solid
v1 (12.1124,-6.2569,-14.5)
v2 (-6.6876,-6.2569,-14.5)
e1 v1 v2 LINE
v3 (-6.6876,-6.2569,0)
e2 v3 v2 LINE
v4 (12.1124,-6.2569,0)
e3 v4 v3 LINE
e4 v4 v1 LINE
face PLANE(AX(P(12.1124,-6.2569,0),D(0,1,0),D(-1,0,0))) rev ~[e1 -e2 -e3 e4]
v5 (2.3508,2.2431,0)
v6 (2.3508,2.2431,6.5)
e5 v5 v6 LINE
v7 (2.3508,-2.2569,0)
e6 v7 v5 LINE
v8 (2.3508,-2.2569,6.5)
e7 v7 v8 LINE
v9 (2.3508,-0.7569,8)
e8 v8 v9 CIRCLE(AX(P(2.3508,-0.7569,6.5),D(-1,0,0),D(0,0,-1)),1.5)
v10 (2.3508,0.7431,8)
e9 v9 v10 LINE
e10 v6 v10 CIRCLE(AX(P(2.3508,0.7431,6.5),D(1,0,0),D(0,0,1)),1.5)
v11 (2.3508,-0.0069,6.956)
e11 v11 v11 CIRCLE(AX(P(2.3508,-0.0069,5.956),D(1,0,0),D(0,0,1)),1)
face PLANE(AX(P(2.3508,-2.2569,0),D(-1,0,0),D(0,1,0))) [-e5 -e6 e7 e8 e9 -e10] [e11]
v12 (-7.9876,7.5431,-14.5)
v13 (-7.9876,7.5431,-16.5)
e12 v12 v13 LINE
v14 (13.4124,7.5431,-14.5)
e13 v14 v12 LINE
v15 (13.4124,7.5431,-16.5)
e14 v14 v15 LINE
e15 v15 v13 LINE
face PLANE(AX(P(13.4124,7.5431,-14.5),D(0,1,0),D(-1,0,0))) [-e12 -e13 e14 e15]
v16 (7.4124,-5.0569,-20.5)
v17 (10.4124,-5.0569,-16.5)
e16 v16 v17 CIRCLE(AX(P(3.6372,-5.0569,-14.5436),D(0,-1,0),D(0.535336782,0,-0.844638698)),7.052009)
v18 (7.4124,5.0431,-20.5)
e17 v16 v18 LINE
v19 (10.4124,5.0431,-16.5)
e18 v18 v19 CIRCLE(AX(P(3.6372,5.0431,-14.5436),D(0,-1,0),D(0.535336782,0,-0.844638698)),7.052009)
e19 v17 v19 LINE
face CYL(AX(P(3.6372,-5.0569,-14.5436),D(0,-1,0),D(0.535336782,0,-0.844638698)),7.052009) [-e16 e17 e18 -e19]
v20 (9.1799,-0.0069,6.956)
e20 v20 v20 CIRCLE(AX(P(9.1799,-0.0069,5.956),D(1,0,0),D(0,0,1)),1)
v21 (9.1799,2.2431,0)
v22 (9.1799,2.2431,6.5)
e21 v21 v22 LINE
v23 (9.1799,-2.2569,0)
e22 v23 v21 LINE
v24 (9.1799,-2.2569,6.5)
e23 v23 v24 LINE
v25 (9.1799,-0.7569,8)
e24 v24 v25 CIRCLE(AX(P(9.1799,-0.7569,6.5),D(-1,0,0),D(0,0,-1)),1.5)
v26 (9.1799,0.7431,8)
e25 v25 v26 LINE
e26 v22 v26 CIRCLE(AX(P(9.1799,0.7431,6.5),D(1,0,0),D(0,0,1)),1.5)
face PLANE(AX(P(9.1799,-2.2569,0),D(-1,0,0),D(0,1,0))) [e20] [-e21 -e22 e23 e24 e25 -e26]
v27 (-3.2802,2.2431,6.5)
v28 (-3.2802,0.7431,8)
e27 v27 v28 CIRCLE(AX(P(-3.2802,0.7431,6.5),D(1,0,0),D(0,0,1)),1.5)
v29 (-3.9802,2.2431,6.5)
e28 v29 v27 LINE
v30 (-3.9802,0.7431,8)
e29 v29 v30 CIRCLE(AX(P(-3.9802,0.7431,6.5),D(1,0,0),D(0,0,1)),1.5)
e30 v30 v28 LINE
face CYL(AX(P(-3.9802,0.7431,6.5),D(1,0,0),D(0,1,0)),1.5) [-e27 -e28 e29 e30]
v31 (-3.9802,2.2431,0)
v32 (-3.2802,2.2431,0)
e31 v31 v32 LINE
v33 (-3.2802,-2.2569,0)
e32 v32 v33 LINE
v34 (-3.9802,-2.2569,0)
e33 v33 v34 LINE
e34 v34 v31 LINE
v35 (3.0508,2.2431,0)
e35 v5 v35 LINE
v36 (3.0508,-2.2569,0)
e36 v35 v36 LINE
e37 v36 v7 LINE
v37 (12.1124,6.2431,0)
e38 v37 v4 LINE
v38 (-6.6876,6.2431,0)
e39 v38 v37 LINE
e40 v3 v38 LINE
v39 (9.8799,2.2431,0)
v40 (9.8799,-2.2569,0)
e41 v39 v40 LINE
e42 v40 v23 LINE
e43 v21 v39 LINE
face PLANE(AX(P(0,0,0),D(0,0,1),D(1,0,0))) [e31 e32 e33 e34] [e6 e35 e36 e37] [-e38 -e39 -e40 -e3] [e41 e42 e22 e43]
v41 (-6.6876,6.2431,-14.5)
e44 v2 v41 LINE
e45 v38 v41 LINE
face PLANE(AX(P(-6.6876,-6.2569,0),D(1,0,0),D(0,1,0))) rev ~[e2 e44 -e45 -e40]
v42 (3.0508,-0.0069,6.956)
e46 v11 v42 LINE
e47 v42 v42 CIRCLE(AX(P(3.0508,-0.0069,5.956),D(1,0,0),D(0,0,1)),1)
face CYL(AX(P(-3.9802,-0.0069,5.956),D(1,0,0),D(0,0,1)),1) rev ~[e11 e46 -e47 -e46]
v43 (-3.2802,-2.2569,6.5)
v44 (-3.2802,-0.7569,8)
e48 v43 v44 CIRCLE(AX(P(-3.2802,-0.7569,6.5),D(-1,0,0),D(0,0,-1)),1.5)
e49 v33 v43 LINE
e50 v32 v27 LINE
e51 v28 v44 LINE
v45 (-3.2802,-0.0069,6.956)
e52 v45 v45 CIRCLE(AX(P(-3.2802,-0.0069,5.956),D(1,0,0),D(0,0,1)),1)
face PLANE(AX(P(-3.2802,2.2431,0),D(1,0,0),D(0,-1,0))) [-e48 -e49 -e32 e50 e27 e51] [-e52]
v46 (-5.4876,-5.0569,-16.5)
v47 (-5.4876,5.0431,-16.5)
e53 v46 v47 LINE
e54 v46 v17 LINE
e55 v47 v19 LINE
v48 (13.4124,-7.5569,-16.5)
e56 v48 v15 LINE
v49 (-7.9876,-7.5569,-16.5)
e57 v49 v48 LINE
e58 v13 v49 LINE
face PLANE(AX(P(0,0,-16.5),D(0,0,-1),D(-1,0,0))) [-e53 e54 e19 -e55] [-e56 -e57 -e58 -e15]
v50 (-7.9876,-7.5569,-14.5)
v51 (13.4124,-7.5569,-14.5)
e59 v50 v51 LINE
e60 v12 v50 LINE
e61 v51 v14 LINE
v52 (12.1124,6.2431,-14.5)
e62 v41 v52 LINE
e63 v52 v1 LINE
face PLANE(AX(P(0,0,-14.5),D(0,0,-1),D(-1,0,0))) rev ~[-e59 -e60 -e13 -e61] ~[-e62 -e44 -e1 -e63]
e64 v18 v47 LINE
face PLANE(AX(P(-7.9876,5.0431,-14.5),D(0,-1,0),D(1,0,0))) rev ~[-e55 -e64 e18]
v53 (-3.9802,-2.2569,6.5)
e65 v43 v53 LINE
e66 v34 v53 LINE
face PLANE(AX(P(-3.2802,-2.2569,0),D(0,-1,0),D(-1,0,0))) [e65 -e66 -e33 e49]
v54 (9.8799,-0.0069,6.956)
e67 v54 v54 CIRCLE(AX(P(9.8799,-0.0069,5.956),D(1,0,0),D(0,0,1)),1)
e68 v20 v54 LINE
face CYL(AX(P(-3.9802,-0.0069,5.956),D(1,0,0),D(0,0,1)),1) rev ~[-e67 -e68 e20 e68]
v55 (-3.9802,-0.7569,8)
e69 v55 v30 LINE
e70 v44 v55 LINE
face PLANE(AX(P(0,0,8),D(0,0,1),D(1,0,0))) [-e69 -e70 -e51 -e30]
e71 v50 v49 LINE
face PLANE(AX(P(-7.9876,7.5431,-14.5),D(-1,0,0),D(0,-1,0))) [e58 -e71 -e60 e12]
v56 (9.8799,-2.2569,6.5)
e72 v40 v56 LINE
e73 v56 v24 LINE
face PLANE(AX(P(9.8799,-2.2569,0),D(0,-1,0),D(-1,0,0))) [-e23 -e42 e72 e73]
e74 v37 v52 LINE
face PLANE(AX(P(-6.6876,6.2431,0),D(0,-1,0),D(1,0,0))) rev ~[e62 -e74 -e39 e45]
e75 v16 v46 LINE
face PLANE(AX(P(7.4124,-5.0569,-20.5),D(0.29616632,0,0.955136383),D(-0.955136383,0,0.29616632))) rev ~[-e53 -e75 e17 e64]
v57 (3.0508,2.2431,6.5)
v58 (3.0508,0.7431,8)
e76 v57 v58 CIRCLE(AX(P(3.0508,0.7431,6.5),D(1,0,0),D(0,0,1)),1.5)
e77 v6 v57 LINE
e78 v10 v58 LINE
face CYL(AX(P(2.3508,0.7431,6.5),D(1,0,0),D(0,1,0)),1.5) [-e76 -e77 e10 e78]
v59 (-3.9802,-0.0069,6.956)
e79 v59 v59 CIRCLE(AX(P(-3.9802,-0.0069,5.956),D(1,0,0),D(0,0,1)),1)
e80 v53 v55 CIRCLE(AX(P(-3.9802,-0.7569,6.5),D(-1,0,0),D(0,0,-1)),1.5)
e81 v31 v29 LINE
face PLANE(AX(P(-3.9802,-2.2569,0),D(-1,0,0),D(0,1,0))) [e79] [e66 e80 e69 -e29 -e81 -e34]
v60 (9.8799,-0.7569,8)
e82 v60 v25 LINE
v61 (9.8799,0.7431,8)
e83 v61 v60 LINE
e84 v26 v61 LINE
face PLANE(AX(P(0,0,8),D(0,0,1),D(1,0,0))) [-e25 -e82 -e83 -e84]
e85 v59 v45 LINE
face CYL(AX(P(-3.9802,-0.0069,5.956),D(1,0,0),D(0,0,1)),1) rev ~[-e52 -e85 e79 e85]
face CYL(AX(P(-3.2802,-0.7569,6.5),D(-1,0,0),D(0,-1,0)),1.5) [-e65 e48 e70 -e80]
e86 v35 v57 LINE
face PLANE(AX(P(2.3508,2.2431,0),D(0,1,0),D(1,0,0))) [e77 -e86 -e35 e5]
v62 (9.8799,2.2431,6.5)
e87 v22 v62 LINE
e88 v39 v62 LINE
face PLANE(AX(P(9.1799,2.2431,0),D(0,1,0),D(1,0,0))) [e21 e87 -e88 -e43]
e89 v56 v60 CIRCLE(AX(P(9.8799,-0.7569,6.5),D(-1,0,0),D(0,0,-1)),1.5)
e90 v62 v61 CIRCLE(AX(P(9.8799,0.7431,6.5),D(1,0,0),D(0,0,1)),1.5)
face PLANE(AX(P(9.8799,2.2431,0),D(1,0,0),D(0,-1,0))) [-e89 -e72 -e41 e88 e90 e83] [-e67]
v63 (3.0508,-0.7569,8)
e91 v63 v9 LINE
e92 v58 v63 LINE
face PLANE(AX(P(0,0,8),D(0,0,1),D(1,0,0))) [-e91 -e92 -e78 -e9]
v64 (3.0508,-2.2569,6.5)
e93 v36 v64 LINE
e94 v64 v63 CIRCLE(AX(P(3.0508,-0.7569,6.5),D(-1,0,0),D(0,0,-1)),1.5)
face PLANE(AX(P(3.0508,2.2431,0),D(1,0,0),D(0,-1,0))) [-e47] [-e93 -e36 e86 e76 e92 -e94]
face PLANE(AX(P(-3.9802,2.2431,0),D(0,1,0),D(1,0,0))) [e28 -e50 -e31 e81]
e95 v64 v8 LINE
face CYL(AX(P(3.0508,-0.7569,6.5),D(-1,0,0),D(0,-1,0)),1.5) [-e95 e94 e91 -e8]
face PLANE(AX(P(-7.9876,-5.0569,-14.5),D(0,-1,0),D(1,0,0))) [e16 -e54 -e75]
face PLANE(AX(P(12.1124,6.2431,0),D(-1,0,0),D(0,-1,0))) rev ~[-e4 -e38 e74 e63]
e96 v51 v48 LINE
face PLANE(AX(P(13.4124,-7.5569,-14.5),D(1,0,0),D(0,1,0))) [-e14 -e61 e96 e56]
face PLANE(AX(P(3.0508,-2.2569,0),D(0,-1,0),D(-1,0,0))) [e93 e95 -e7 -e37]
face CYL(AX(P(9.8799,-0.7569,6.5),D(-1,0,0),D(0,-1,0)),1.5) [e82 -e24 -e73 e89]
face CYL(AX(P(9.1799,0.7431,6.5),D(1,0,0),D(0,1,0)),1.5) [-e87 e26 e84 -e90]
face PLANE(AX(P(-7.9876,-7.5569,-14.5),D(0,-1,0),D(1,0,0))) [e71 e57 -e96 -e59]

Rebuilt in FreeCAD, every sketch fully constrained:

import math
import FreeCAD as App
import Part
import Sketcher
from FreeCAD import Vector
Q = App.Units.Quantity


def edges_at(feature, points):
    """Names of the edges that pass closest to the given points."""
    edges = feature.Shape.Edges
    near = lambda p: min(range(len(edges)), key=lambda i: edges[i].distToShape(Part.Vertex(*p))[0])
    return sorted({f"Edge{near(p) + 1}" for p in points})

doc = App.newDocument("Part")
body = doc.addObject("PartDesign::Body", "Body")

sketch1 = body.newObject("Sketcher::SketchObject", "Sketch")
sketch1.AttachmentSupport = (doc.getObject("XY_Plane"), [""])
sketch1.MapMode = "FlatFace"
sketch1.addGeometry([
    Part.LineSegment(Vector(12, 6, 0), Vector(-7, 6, 0)),
    Part.LineSegment(Vector(-7, 6, 0), Vector(-7, -6, 0)),
    Part.LineSegment(Vector(-7, -6, 0), Vector(12, -6, 0)),
    Part.LineSegment(Vector(12, -6, 0), Vector(12, 6, 0)),
], False)
sketch1.addConstraint([
    Sketcher.Constraint("Coincident", 0, 2, 1, 1),
    Sketcher.Constraint("Coincident", 1, 2, 2, 1),
    Sketcher.Constraint("Coincident", 2, 2, 3, 1),
    Sketcher.Constraint("Coincident", 3, 2, 0, 1),
    Sketcher.Constraint("Horizontal", 0),
    Sketcher.Constraint("Vertical", 1),
    Sketcher.Constraint("Horizontal", 2),
    Sketcher.Constraint("Vertical", 3),
    Sketcher.Constraint("DistanceX", 0, 2, 0, 1, Q("18.8 mm")),
    Sketcher.Constraint("DistanceY", 1, 2, 1, 1, Q("12.5 mm")),
    Sketcher.Constraint("DistanceY", -1, 1, 0, 2, Q("6.243 mm")),
    Sketcher.Constraint("DistanceX", 0, 2, -1, 1, Q("6.6876 mm")),
])
pad1 = body.newObject("PartDesign::Pad", "Pad")
pad1.Profile = sketch1
pad1.Length = 14.5
pad1.Reversed = True

sketch2 = body.newObject("Sketcher::SketchObject", "Sketch001")
sketch2.AttachmentSupport = (doc.getObject("XY_Plane"), [""])
sketch2.MapMode = "FlatFace"
sketch2.addGeometry([
    Part.LineSegment(Vector(-3.3, 2.2, 0), Vector(-4, 2.2, 0)),
    Part.LineSegment(Vector(-4, 2.2, 0), Vector(-4, -2.3, 0)),
    Part.LineSegment(Vector(-4, -2.3, 0), Vector(-3.3, -2.3, 0)),
    Part.LineSegment(Vector(-3.3, -2.3, 0), Vector(-3.3, 2.2, 0)),
    Part.LineSegment(Vector(3.1, 2.2, 0), Vector(2.4, 2.2, 0)),
    Part.LineSegment(Vector(2.4, 2.2, 0), Vector(2.4, -2.3, 0)),
    Part.LineSegment(Vector(2.4, -2.3, 0), Vector(3.1, -2.3, 0)),
    Part.LineSegment(Vector(3.1, -2.3, 0), Vector(3.1, 2.2, 0)),
    Part.LineSegment(Vector(9.9, 2.2, 0), Vector(9.2, 2.2, 0)),
    Part.LineSegment(Vector(9.2, 2.2, 0), Vector(9.2, -2.3, 0)),
    Part.LineSegment(Vector(9.2, -2.3, 0), Vector(9.9, -2.3, 0)),
    Part.LineSegment(Vector(9.9, -2.3, 0), Vector(9.9, 2.2, 0)),
], False)
sketch2.addConstraint([
    Sketcher.Constraint("Coincident", 0, 2, 1, 1),
    Sketcher.Constraint("Coincident", 1, 2, 2, 1),
    Sketcher.Constraint("Coincident", 2, 2, 3, 1),
    Sketcher.Constraint("Coincident", 3, 2, 0, 1),
    Sketcher.Constraint("Coincident", 4, 2, 5, 1),
    Sketcher.Constraint("Coincident", 5, 2, 6, 1),
    Sketcher.Constraint("Coincident", 6, 2, 7, 1),
    Sketcher.Constraint("Coincident", 7, 2, 4, 1),
    Sketcher.Constraint("Coincident", 8, 2, 9, 1),
    Sketcher.Constraint("Coincident", 9, 2, 10, 1),
    Sketcher.Constraint("Coincident", 10, 2, 11, 1),
    Sketcher.Constraint("Coincident", 11, 2, 8, 1),
    Sketcher.Constraint("Horizontal", 0),
    Sketcher.Constraint("Vertical", 1),
    Sketcher.Constraint("Horizontal", 2),
    Sketcher.Constraint("Vertical", 3),
    Sketcher.Constraint("Horizontal", 4),
    Sketcher.Constraint("Vertical", 5),
    Sketcher.Constraint("Horizontal", 6),
    Sketcher.Constraint("Vertical", 7),
    Sketcher.Constraint("Horizontal", 8),
    Sketcher.Constraint("Vertical", 9),
    Sketcher.Constraint("Horizontal", 10),
    Sketcher.Constraint("Vertical", 11),
    Sketcher.Constraint("Horizontal", 3, 2, 4, 2),
    Sketcher.Constraint("Horizontal", 2, 2, 5, 2),
    Sketcher.Constraint("Horizontal", 7, 2, 8, 2),
    Sketcher.Constraint("Horizontal", 6, 2, 9, 2),
    Sketcher.Constraint("Equal", 2, 4),
    Sketcher.Constraint("Equal", 6, 8),
    Sketcher.Constraint("DistanceX", 0, 2, 0, 1, Q("0.7 mm")),
    Sketcher.Constraint("DistanceY", 1, 2, 1, 1, Q("4.5 mm")),
    Sketcher.Constraint("DistanceX", -1, 1, 8, 2, Q("9.18 mm")),
    Sketcher.Constraint("DistanceX", 3, 2, 8, 2, Q("12.46 mm")),
    Sketcher.Constraint("DistanceY", -1, 1, 0, 2, Q("2.243 mm")),
    Sketcher.Constraint("DistanceX", 3, 2, 4, 2, Q("5.631 mm")),
])
pad2 = body.newObject("PartDesign::Pad", "Pad001")
pad2.Profile = sketch2
pad2.Length = 8
doc.recompute()

fillet = body.newObject("PartDesign::Fillet", "Fillet")
fillet.Base = (pad2, edges_at(pad2, [
    (-3.63, 2.243, 8),
    (2.701, 2.243, 8),
    (9.53, 2.243, 8),
    (-3.63, -2.257, 8),
    (2.701, -2.257, 8),
    (9.53, -2.257, 8),
]))
fillet.Radius = 1.5

sketch3 = body.newObject("Sketcher::SketchObject", "Sketch002")
sketch3.AttachmentSupport = (doc.getObject("XY_Plane"), [""])
sketch3.MapMode = "FlatFace"
sketch3.AttachmentOffset = App.Placement(Vector(0, 0, -14.5), App.Rotation())
sketch3.addGeometry([
    Part.LineSegment(Vector(-8, 8, 0), Vector(13, 8, 0)),
    Part.LineSegment(Vector(13, 8, 0), Vector(13, -8, 0)),
    Part.LineSegment(Vector(13, -8, 0), Vector(-8, -8, 0)),
    Part.LineSegment(Vector(-8, -8, 0), Vector(-8, 8, 0)),
], False)
sketch3.addConstraint([
    Sketcher.Constraint("Coincident", 0, 2, 1, 1),
    Sketcher.Constraint("Coincident", 1, 2, 2, 1),
    Sketcher.Constraint("Coincident", 2, 2, 3, 1),
    Sketcher.Constraint("Coincident", 3, 2, 0, 1),
    Sketcher.Constraint("Horizontal", 0),
    Sketcher.Constraint("Vertical", 1),
    Sketcher.Constraint("Horizontal", 2),
    Sketcher.Constraint("Vertical", 3),
    Sketcher.Constraint("DistanceX", 0, 1, 0, 2, Q("21.4 mm")),
    Sketcher.Constraint("DistanceY", 1, 2, 1, 1, Q("15.1 mm")),
    Sketcher.Constraint("DistanceY", -1, 1, 0, 2, Q("7.543 mm")),
    Sketcher.Constraint("DistanceX", -1, 1, 0, 2, Q("13.4124 mm")),
])
pad3 = body.newObject("PartDesign::Pad", "Pad002")
pad3.Profile = sketch3
pad3.Length = 2
pad3.Reversed = True

sketch4 = body.newObject("Sketcher::SketchObject", "Sketch003")
sketch4.AttachmentSupport = (doc.getObject("YZ_Plane"), [""])
sketch4.MapMode = "FlatFace"
sketch4.AttachmentOffset = App.Placement(Vector(0, 0, -3.9802), App.Rotation())
sketch4.addGeometry(Part.Circle(Vector(0, 6, 0), Vector(0, 0, 1), 1), False)
sketch4.addConstraint([
    Sketcher.Constraint("Diameter", 0, Q("2 mm")),
    Sketcher.Constraint("DistanceX", 0, 3, -1, 1, Q("0.007 mm")),
    Sketcher.Constraint("DistanceY", -1, 1, 0, 3, Q("5.956 mm")),
])
doc.recompute()
hole = body.newObject("PartDesign::Hole", "Hole")
hole.Profile = sketch4
hole.ThreadType = "None"
hole.Diameter = 2
hole.DepthType = "ThroughAll"
hole.Reversed = True

sketch5 = body.newObject("Sketcher::SketchObject", "Sketch004")
sketch5.AttachmentSupport = (doc.getObject("XZ_Plane"), [""])
sketch5.MapMode = "FlatFace"
sketch5.AttachmentOffset = App.Placement(Vector(0, 0, 5.0569), App.Rotation())
sketch5.addGeometry([
    Part.ArcOfCircle(Part.Circle(Vector(4, -15, 0), Vector(0, 0, 1), 7), math.radians(-58), math.radians(-16)),
    Part.LineSegment(Vector(10, -16, 0), Vector(-5, -16, 0)),
    Part.LineSegment(Vector(-5, -16, 0), Vector(7, -20, 0)),
], False)
sketch5.addConstraint([
    Sketcher.Constraint("Coincident", 0, 2, 1, 1),
    Sketcher.Constraint("Coincident", 1, 2, 2, 1),
    Sketcher.Constraint("Coincident", 2, 2, 0, 1),
    Sketcher.Constraint("Horizontal", 1),
    Sketcher.Constraint("DistanceX", 2, 2, 0, 2, Q("3 mm")),
    Sketcher.Constraint("DistanceY", 2, 2, 0, 2, Q("4 mm")),
    Sketcher.Constraint("DistanceX", 1, 2, 1, 1, Q("15.9 mm")),
    Sketcher.Constraint("Radius", 0, Q("7.052 mm")),
    Sketcher.Constraint("DistanceY", 0, 2, -1, 1, Q("16.5 mm")),
    Sketcher.Constraint("DistanceX", -1, 1, 0, 3, Q("3.6372 mm")),
])
pad4 = body.newObject("PartDesign::Pad", "Pad003")
pad4.Profile = sketch5
pad4.Length = 10.1
pad4.Reversed = True

doc.recompute()
